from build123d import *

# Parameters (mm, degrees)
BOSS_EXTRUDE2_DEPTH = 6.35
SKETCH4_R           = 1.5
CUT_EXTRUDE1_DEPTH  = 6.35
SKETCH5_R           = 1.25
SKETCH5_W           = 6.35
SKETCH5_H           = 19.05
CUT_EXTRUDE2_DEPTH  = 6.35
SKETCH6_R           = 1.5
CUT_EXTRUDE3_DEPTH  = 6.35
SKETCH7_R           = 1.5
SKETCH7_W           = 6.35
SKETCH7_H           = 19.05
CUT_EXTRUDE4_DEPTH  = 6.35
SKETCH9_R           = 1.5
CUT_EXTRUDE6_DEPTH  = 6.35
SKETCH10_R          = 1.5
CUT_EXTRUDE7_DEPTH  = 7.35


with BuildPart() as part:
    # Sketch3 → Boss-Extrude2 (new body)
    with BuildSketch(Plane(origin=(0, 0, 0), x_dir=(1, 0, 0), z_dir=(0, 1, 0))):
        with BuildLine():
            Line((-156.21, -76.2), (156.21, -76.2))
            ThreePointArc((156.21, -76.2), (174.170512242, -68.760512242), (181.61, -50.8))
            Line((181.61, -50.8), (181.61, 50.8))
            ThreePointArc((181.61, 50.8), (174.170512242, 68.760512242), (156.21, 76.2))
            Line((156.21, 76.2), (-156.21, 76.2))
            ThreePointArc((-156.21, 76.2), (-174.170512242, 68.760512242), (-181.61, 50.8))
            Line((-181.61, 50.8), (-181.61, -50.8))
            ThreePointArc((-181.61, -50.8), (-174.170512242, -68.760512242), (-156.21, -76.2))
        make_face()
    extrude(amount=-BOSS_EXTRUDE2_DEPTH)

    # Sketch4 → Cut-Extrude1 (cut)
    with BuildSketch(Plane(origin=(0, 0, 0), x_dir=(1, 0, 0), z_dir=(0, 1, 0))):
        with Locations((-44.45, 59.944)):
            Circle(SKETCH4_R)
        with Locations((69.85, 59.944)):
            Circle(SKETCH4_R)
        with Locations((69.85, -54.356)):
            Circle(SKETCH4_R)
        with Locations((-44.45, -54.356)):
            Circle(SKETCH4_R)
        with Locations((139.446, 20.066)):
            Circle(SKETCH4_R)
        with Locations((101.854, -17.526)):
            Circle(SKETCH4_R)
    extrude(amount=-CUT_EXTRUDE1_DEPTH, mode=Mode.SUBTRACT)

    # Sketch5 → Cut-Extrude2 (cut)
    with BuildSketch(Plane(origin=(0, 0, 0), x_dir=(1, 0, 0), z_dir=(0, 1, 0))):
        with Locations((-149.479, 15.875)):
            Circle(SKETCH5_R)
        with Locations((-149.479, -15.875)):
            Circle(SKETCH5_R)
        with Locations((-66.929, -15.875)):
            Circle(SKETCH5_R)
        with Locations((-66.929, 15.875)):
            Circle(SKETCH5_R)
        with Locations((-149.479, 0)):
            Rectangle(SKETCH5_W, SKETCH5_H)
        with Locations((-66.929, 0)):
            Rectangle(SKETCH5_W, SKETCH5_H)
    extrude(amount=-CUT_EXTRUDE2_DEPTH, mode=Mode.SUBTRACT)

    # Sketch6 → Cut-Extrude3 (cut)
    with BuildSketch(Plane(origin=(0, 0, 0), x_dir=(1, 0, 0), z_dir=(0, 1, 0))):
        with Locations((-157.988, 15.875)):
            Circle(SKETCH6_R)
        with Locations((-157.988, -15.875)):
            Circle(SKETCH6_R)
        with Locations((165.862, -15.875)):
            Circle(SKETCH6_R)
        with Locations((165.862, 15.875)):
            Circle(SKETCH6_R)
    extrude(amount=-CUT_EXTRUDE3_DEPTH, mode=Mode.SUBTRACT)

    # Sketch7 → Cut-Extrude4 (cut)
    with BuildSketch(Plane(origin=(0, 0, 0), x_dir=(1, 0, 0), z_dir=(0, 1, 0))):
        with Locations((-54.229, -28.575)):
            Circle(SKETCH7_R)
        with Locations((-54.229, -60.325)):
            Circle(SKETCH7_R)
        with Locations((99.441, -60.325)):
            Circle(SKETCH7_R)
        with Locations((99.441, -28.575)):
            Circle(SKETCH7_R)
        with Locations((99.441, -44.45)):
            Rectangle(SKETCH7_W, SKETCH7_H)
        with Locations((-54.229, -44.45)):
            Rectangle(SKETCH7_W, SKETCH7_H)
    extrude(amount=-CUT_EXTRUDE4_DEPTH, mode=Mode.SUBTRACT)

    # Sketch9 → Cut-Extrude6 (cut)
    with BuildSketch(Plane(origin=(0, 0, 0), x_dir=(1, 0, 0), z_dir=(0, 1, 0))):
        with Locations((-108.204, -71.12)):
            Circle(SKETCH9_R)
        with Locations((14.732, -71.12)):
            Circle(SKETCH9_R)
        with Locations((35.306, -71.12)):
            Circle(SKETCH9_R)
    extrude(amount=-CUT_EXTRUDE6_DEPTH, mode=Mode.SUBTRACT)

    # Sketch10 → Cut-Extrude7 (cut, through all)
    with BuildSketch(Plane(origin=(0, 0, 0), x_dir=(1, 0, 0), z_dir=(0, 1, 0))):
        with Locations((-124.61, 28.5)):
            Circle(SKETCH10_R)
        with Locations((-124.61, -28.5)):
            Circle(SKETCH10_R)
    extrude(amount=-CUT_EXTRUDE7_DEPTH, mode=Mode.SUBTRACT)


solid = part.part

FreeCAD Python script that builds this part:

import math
import FreeCAD as App
import Part
import Sketcher
Q = App.Units.Quantity


def add_polygon(sketch, points):
    """Adds a closed chain of lines whose ends are joined by coincident constraints."""
    first, n = sketch.GeometryCount, len(points)
    for a, b in zip(points, points[1:] + points[:1]):
        sketch.addGeometry(Part.LineSegment(App.Vector(*a, 0), App.Vector(*b, 0)), False)
    for i in range(n):
        sketch.addConstraint(Sketcher.Constraint("Coincident", first + i, 2, first + (i + 1) % n, 1))

doc = App.newDocument("Part")
body = doc.addObject("PartDesign::Body", "Body")

sketch1 = body.newObject("Sketcher::SketchObject", "Sketch")
sketch1.AttachmentSupport = (doc.getObject("XZ_Plane"), [""])
sketch1.MapMode = "FlatFace"
sketch1.addGeometry([
    Part.LineSegment(App.Vector(-156, 76, 0), App.Vector(156, 76, 0)),
    Part.ArcOfCircle(Part.Circle(App.Vector(156, 51, 0), App.Vector(0, 0, 1), 25), math.radians(0), math.radians(90)),
    Part.LineSegment(App.Vector(182, 51, 0), App.Vector(182, -51, 0)),
    Part.ArcOfCircle(Part.Circle(App.Vector(156, -51, 0), App.Vector(0, 0, 1), 25), math.radians(-90), math.radians(0)),
    Part.LineSegment(App.Vector(156, -76, 0), App.Vector(-156, -76, 0)),
    Part.ArcOfCircle(Part.Circle(App.Vector(-156, -51, 0), App.Vector(0, 0, 1), 25), math.radians(180), math.radians(270)),
    Part.LineSegment(App.Vector(-182, -51, 0), App.Vector(-182, 51, 0)),
    Part.ArcOfCircle(Part.Circle(App.Vector(-156, 51, 0), App.Vector(0, 0, 1), 25), math.radians(90), math.radians(180)),
], False)
sketch1.addConstraint([
    Sketcher.Constraint("Tangent", 0, 2, 1, 2),
    Sketcher.Constraint("Tangent", 1, 1, 2, 1),
    Sketcher.Constraint("Tangent", 2, 2, 3, 2),
    Sketcher.Constraint("Tangent", 3, 1, 4, 1),
    Sketcher.Constraint("Tangent", 4, 2, 5, 2),
    Sketcher.Constraint("Tangent", 5, 1, 6, 1),
    Sketcher.Constraint("Tangent", 6, 2, 7, 2),
    Sketcher.Constraint("Tangent", 7, 1, 0, 1),
    Sketcher.Constraint("Horizontal", 0),
    Sketcher.Constraint("Vertical", 2),
    Sketcher.Constraint("Horizontal", 4),
    Sketcher.Constraint("Vertical", 6),
    Sketcher.Constraint("Equal", 1, 3),
    Sketcher.Constraint("Equal", 3, 5),
    Sketcher.Constraint("Equal", 5, 7),
    Sketcher.Constraint("Symmetric", 1, 3, 5, 3, -1, 1),
    Sketcher.Constraint("Radius", 1, Q("1 in")),
    Sketcher.Constraint("DistanceY", 2, 2, 2, 1, Q("4 in")),
    Sketcher.Constraint("DistanceX", 0, 1, 0, 2, Q("12.3 in")),
])
pad1 = body.newObject("PartDesign::Pad", "Pad")
pad1.Profile = sketch1
pad1.Length = Q("0.25 in")

sketch2 = body.newObject("Sketcher::SketchObject", "Sketch001")
sketch2.AttachmentSupport = (doc.getObject("XZ_Plane"), [""])
sketch2.MapMode = "FlatFace"
sketch2.addGeometry([
    Part.Circle(App.Vector(-44.5, -59.9, 0), App.Vector(0, 0, 1), 1.5),
    Part.Circle(App.Vector(69.8, -59.9, 0), App.Vector(0, 0, 1), 1.5),
    Part.Circle(App.Vector(69.8, 54.4, 0), App.Vector(0, 0, 1), 1.5),
    Part.Circle(App.Vector(-44.5, 54.4, 0), App.Vector(0, 0, 1), 1.5),
    Part.Circle(App.Vector(139.4, -20.1, 0), App.Vector(0, 0, 1), 1.5),
    Part.Circle(App.Vector(101.9, 17.5, 0), App.Vector(0, 0, 1), 1.5),
], False)
sketch2.addConstraint([
    Sketcher.Constraint("Equal", 0, 1),
    Sketcher.Constraint("Equal", 1, 2),
    Sketcher.Constraint("Equal", 2, 3),
    Sketcher.Constraint("Equal", 3, 4),
    Sketcher.Constraint("Equal", 4, 5),
    Sketcher.Constraint("Horizontal", 0, 3, 1, 3),
    Sketcher.Constraint("Horizontal", 2, 3, 3, 3),
    Sketcher.Constraint("Vertical", 1, 3, 2, 3),
    Sketcher.Constraint("Vertical", 0, 3, 3, 3),
    Sketcher.Constraint("DistanceX", 0, 3, 1, 3, Q("4.5 in")),
    Sketcher.Constraint("DistanceY", 1, 3, 2, 3, Q("4.5 in")),
    Sketcher.Constraint("Diameter", 0, Q("3 mm")),
    Sketcher.Constraint("DistanceX", 0, 3, -1, 1, Q("1.75 in")),
    Sketcher.Constraint("DistanceY", 0, 3, -1, 1, Q("2.36 in")),
    Sketcher.Constraint("DistanceX", -1, 1, 4, 3, Q("5.49 in")),
    Sketcher.Constraint("DistanceY", 4, 3, -1, 1, Q("0.79 in")),
    Sketcher.Constraint("DistanceX", -1, 1, 5, 3, Q("4.01 in")),
    Sketcher.Constraint("DistanceY", -1, 1, 5, 3, Q("0.69 in")),
])
pocket1 = body.newObject("PartDesign::Pocket", "Pocket")
pocket1.Profile = sketch2
pocket1.Length = Q("0.25 in")
pocket1.Reversed = True

sketch3 = body.newObject("Sketcher::SketchObject", "Sketch002")
sketch3.AttachmentSupport = (doc.getObject("XZ_Plane"), [""])
sketch3.MapMode = "FlatFace"
sketch3.addGeometry(Part.Circle(App.Vector(-149.5, -15.9, 0), App.Vector(0, 0, 1), 1.2), False)
sketch3.addGeometry(Part.Circle(App.Vector(-149.5, 15.9, 0), App.Vector(0, 0, 1), 1.2), False)
sketch3.addGeometry(Part.Circle(App.Vector(-66.9, 15.9, 0), App.Vector(0, 0, 1), 1.2), False)
sketch3.addGeometry(Part.Circle(App.Vector(-66.9, -15.9, 0), App.Vector(0, 0, 1), 1.2), False)
add_polygon(sketch3, [(-152.7, -9.5), (-152.7, 9.5), (-146.3, 9.5), (-146.3, -9.5)])
add_polygon(sketch3, [(-70.1, -9.5), (-70.1, 9.5), (-63.8, 9.5), (-63.8, -9.5)])
sketch3.addConstraint([
    Sketcher.Constraint("Vertical", 4),
    Sketcher.Constraint("Horizontal", 5),
    Sketcher.Constraint("Vertical", 6),
    Sketcher.Constraint("Horizontal", 7),
    Sketcher.Constraint("Vertical", 8),
    Sketcher.Constraint("Horizontal", 9),
    Sketcher.Constraint("Vertical", 10),
    Sketcher.Constraint("Horizontal", 11),
    Sketcher.Constraint("Equal", 0, 1),
    Sketcher.Constraint("Equal", 1, 2),
    Sketcher.Constraint("Equal", 2, 3),
    Sketcher.Constraint("Symmetric", 0, 3, 1, 3, -1),
    Sketcher.Constraint("Symmetric", 2, 3, 3, 3, -1),
    Sketcher.Constraint("Horizontal", 1, 3, 2, 3),
    Sketcher.Constraint("Horizontal", 5, 2, 8, 2),
    Sketcher.Constraint("Horizontal", 7, 2, 10, 2),
    Sketcher.Constraint("Equal", 7, 9),
    Sketcher.Constraint("DistanceY", 0, 3, 4, 2, Q("1 in")),
    Sketcher.Constraint("DistanceY", 6, 2, 1, 3, Q("1 in")),
    Sketcher.Constraint("DistanceX", 5, 2, 8, 2, Q("3 in")),
    Sketcher.Constraint("DistanceX", 5, 1, 5, 2, Q("0.25 in")),
    Sketcher.Constraint("DistanceY", 4, 1, 4, 2, Q("0.75 in")),
    Sketcher.Constraint("Diameter", 0, Q("2.5 mm")),
    Sketcher.Constraint("DistanceX", 4, 2, -1, 1, Q("6.01 in")),
    Sketcher.Constraint("DistanceX", 1, 3, 2, 3, Q("3.25 in")),
    Sketcher.Constraint("DistanceX", 0, 3, -1, 1, Q("5.885 in")),
])
pocket2 = body.newObject("PartDesign::Pocket", "Pocket001")
pocket2.Profile = sketch3
pocket2.Length = Q("0.25 in")
pocket2.Reversed = True

sketch4 = body.newObject("Sketcher::SketchObject", "Sketch003")
sketch4.AttachmentSupport = (doc.getObject("XZ_Plane"), [""])
sketch4.MapMode = "FlatFace"
sketch4.addGeometry([
    Part.Circle(App.Vector(-158, -15.9, 0), App.Vector(0, 0, 1), 1.5),
    Part.Circle(App.Vector(-158, 15.9, 0), App.Vector(0, 0, 1), 1.5),
    Part.Circle(App.Vector(165.9, 15.9, 0), App.Vector(0, 0, 1), 1.5),
    Part.Circle(App.Vector(165.9, -15.9, 0), App.Vector(0, 0, 1), 1.5),
], False)
sketch4.addConstraint([
    Sketcher.Constraint("Equal", 0, 1),
    Sketcher.Constraint("Equal", 1, 2),
    Sketcher.Constraint("Equal", 2, 3),
    Sketcher.Constraint("Symmetric", 0, 3, 1, 3, -1),
    Sketcher.Constraint("Symmetric", 2, 3, 3, 3, -1),
    Sketcher.Constraint("Horizontal", 1, 3, 2, 3),
    Sketcher.Constraint("Diameter", 0, Q("3 mm")),
    Sketcher.Constraint("DistanceX", 0, 3, -1, 1, Q("6.22 in")),
    Sketcher.Constraint("DistanceX", -1, 1, 2, 3, Q("6.53 in")),
    Sketcher.Constraint("DistanceY", 0, 3, 1, 3, Q("1.25 in")),
])
pocket3 = body.newObject("PartDesign::Pocket", "Pocket002")
pocket3.Profile = sketch4
pocket3.Length = Q("0.25 in")
pocket3.Reversed = True

sketch5 = body.newObject("Sketcher::SketchObject", "Sketch004")
sketch5.AttachmentSupport = (doc.getObject("XZ_Plane"), [""])
sketch5.MapMode = "FlatFace"
sketch5.addGeometry(Part.Circle(App.Vector(-54.2, 28.6, 0), App.Vector(0, 0, 1), 1.5), False)
sketch5.addGeometry(Part.Circle(App.Vector(-54.2, 60.3, 0), App.Vector(0, 0, 1), 1.5), False)
sketch5.addGeometry(Part.Circle(App.Vector(99.4, 60.3, 0), App.Vector(0, 0, 1), 1.5), False)
sketch5.addGeometry(Part.Circle(App.Vector(99.4, 28.6, 0), App.Vector(0, 0, 1), 1.5), False)
add_polygon(sketch5, [(96.3, 34.9), (96.3, 54), (102.6, 54), (102.6, 34.9)])
add_polygon(sketch5, [(-57.4, 34.9), (-57.4, 54), (-51.1, 54), (-51.1, 34.9)])
sketch5.addConstraint([
    Sketcher.Constraint("Vertical", 4),
    Sketcher.Constraint("Horizontal", 5),
    Sketcher.Constraint("Vertical", 6),
    Sketcher.Constraint("Horizontal", 7),
    Sketcher.Constraint("Vertical", 8),
    Sketcher.Constraint("Horizontal", 9),
    Sketcher.Constraint("Vertical", 10),
    Sketcher.Constraint("Horizontal", 11),
    Sketcher.Constraint("Equal", 0, 1),
    Sketcher.Constraint("Equal", 1, 2),
    Sketcher.Constraint("Equal", 2, 3),
    Sketcher.Constraint("Horizontal", 1, 3, 2, 3),
    Sketcher.Constraint("Horizontal", 0, 3, 3, 3),
    Sketcher.Constraint("Horizontal", 5, 2, 8, 2),
    Sketcher.Constraint("Horizontal", 7, 2, 10, 2),
    Sketcher.Constraint("Vertical", 0, 3, 1, 3),
    Sketcher.Constraint("Vertical", 2, 3, 3, 3),
    Sketcher.Constraint("Equal", 7, 9),
    Sketcher.Constraint("DistanceY", 3, 3, 4, 2, Q("1 in")),
    Sketcher.Constraint("DistanceY", 6, 2, 2, 3, Q("1 in")),
    Sketcher.Constraint("DistanceX", 5, 1, 5, 2, Q("0.25 in")),
    Sketcher.Constraint("DistanceY", 4, 1, 4, 2, Q("0.75 in")),
    Sketcher.Constraint("DistanceX", 9, 2, 4, 2, Q("5.8 in")),
    Sketcher.Constraint("Diameter", 0, Q("3 mm")),
    Sketcher.Constraint("DistanceX", -1, 1, 4, 2, Q("3.79 in")),
    Sketcher.Constraint("DistanceX", 1, 3, 2, 3, Q("6.05 in")),
    Sketcher.Constraint("DistanceX", 0, 3, -1, 1, Q("2.135 in")),
    Sketcher.Constraint("DistanceY", -1, 1, 0, 3, Q("1.125 in")),
])
pocket4 = body.newObject("PartDesign::Pocket", "Pocket003")
pocket4.Profile = sketch5
pocket4.Length = Q("0.25 in")
pocket4.Reversed = True

sketch6 = body.newObject("Sketcher::SketchObject", "Sketch005")
sketch6.AttachmentSupport = (doc.getObject("XZ_Plane"), [""])
sketch6.MapMode = "FlatFace"
sketch6.addGeometry([
    Part.Circle(App.Vector(-108.2, 71.1, 0), App.Vector(0, 0, 1), 1.5),
    Part.Circle(App.Vector(14.7, 71.1, 0), App.Vector(0, 0, 1), 1.5),
    Part.Circle(App.Vector(35.3, 71.1, 0), App.Vector(0, 0, 1), 1.5),
], False)
sketch6.addConstraint([
    Sketcher.Constraint("Equal", 0, 1),
    Sketcher.Constraint("Equal", 1, 2),
    Sketcher.Constraint("Horizontal", 0, 3, 1, 3),
    Sketcher.Constraint("Horizontal", 1, 3, 2, 3),
    Sketcher.Constraint("DistanceY", -1, 1, 0, 3, Q("2.8 in")),
    Sketcher.Constraint("Diameter", 0, Q("3 mm")),
    Sketcher.Constraint("DistanceX", 0, 3, -1, 1, Q("4.26 in")),
    Sketcher.Constraint("DistanceX", -1, 1, 1, 3, Q("0.58 in")),
    Sketcher.Constraint("DistanceX", -1, 1, 2, 3, Q("1.39 in")),
])
pocket5 = body.newObject("PartDesign::Pocket", "Pocket004")
pocket5.Profile = sketch6
pocket5.Length = Q("0.25 in")
pocket5.Reversed = True

sketch7 = body.newObject("Sketcher::SketchObject", "Sketch006")
sketch7.AttachmentSupport = (doc.getObject("XZ_Plane"), [""])
sketch7.MapMode = "FlatFace"
sketch7.addGeometry([
    Part.Circle(App.Vector(-124.6, -28.5, 0), App.Vector(0, 0, 1), 1.5),
    Part.Circle(App.Vector(-124.6, 28.5, 0), App.Vector(0, 0, 1), 1.5),
], False)
sketch7.addConstraint([
    Sketcher.Constraint("Equal", 0, 1),
    Sketcher.Constraint("Symmetric", 0, 3, 1, 3, -1),
    Sketcher.Constraint("Diameter", 0, Q("3 mm")),
    Sketcher.Constraint("DistanceX", 0, 3, -1, 1, Q("124.61 mm")),
    Sketcher.Constraint("DistanceY", 0, 3, -1, 1, Q("28.5 mm")),
])
pocket6 = body.newObject("PartDesign::Pocket", "Pocket005")
pocket6.Profile = sketch7
pocket6.Type = "ThroughAll"
pocket6.Reversed = True

doc.recompute()
